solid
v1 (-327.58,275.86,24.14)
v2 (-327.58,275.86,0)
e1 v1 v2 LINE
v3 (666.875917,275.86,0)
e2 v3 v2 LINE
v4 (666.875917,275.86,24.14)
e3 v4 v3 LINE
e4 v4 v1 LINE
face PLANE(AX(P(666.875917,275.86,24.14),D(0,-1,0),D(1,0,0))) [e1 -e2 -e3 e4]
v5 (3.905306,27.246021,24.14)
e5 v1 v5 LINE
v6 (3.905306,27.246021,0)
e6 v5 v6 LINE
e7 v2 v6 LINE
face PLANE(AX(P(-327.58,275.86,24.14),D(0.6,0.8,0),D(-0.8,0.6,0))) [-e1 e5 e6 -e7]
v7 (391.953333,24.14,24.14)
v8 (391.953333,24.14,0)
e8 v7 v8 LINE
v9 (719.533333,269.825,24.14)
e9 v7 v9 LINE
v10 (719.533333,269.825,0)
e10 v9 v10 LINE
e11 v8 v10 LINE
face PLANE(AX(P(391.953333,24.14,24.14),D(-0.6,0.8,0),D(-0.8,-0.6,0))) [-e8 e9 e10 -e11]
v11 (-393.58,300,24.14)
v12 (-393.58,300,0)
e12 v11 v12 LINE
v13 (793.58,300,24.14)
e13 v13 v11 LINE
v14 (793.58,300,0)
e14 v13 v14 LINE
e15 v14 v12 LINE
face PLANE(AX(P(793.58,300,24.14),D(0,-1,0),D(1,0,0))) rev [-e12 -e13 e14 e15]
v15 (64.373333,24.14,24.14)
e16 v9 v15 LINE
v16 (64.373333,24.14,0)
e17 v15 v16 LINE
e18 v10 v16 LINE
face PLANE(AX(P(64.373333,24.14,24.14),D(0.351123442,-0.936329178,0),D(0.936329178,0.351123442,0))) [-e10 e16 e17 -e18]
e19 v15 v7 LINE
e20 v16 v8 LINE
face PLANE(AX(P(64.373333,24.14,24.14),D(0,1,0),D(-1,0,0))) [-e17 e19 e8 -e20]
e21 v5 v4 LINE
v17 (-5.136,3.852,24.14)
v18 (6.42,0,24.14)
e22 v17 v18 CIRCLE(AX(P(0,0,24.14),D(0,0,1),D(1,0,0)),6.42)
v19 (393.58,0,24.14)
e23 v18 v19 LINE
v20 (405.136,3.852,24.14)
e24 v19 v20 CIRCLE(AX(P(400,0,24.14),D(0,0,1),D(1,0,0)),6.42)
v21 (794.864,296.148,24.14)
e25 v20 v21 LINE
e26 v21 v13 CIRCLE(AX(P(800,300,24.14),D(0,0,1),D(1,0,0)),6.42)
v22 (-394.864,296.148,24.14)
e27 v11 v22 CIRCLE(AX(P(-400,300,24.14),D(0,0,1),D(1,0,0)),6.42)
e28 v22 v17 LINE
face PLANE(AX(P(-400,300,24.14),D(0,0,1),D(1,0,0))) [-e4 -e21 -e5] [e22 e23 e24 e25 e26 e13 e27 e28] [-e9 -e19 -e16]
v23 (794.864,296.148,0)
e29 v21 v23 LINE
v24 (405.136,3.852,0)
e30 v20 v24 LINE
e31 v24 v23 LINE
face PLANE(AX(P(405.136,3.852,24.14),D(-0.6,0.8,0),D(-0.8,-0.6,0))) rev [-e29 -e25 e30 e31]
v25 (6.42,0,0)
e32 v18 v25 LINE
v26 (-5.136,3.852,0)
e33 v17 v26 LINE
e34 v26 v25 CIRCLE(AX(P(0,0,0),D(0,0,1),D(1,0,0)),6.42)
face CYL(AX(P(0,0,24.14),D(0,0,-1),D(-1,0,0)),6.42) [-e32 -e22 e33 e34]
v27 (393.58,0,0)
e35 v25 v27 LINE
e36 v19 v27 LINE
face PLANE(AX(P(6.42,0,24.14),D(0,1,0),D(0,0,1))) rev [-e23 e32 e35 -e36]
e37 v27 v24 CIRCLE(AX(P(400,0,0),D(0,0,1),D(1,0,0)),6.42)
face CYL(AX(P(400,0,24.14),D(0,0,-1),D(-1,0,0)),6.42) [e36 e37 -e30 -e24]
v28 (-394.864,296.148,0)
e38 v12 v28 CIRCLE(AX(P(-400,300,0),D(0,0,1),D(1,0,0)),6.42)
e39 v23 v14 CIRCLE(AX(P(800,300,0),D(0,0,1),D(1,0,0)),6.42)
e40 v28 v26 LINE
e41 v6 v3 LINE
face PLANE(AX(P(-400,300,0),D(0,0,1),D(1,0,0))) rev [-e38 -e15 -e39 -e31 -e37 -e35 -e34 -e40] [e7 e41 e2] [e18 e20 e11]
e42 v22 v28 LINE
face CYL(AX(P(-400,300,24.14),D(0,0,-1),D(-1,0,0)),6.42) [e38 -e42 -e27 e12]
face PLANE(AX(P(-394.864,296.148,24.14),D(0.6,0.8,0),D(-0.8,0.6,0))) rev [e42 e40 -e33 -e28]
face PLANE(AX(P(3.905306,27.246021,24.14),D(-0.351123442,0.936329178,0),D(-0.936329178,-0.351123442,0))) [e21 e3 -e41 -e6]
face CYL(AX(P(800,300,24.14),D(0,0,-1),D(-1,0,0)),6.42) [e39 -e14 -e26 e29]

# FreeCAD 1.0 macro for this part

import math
import FreeCAD as App
import Part
import Sketcher


def add_polygon(sketch, points):
    """Adds a closed chain of lines whose ends are joined by coincident constraints."""
    first, n = sketch.GeometryCount, len(points)
    for a, b in zip(points, points[1:] + points[:1]):
        sketch.addGeometry(Part.LineSegment(App.Vector(*a, 0), App.Vector(*b, 0)), False)
    for i in range(n):
        sketch.addConstraint(Sketcher.Constraint("Coincident", first + i, 2, first + (i + 1) % n, 1))

doc = App.newDocument("Part")
params = doc.addObject("Spreadsheet::Sheet", "Params")
for row, (alias, value) in enumerate([
    ("sketch1_radius", "6.42 mm"),
    ("sketch1_width", "327.58 mm"),
    ("pad1_length", "24.14 mm"),
], start=1):
    params.set(f"A{row}", alias)
    params.set(f"B{row}", "=" + value)
    params.setAlias(f"B{row}", alias)

body = doc.addObject("PartDesign::Body", "Body")

# Sketch on XY plane
sketch1 = doc.addObject("Sketcher::SketchObject", "Sketch")
body.addObject(sketch1)
sketch1.AttachmentSupport = (doc.XY_Plane, [""])
sketch1.MapMode = "FlatFace"
sketch1.addGeometry(Part.LineSegment(App.Vector(6.4, 0, 0), App.Vector(393.6, 0, 0)), False)  # 0
sketch1.addGeometry(Part.ArcOfCircle(Part.Circle(App.Vector(400, 0, 0), App.Vector(0, 0, 1), 6.4), math.radians(180), math.radians(397)), False)  # 1
sketch1.addGeometry(Part.LineSegment(App.Vector(405.1, 3.9, 0), App.Vector(794.9, 296.1, 0)), False)  # 2
sketch1.addGeometry(Part.ArcOfCircle(Part.Circle(App.Vector(800, 300, 0), App.Vector(0, 0, 1), 6.4), math.radians(-143), math.radians(180)), False)  # 3
sketch1.addGeometry(Part.LineSegment(App.Vector(793.6, 300, 0), App.Vector(-393.6, 300, 0)), False)  # 4
sketch1.addGeometry(Part.ArcOfCircle(Part.Circle(App.Vector(-400, 300, 0), App.Vector(0, 0, 1), 6.4), math.radians(0), math.radians(323)), False)  # 5
sketch1.addGeometry(Part.LineSegment(App.Vector(-394.9, 296.1, 0), App.Vector(-5.1, 3.9, 0)), False)  # 6
sketch1.addGeometry(Part.ArcOfCircle(Part.Circle(App.Vector(0, 0, 0), App.Vector(0, 0, 1), 6.4), math.radians(143), math.radians(360)), False)  # 7
add_polygon(sketch1, [(392, 24.1), (64.4, 24.1), (719.5, 269.8)])  # lines 8-10
add_polygon(sketch1, [(3.9, 27.2), (-327.6, 275.9), (666.9, 275.9)])  # lines 11-13
sketch1.addConstraint([
    Sketcher.Constraint("Coincident", 0, 2, 1, 1),
    Sketcher.Constraint("Coincident", 1, 2, 2, 1),
    Sketcher.Constraint("Coincident", 2, 2, 3, 1),
    Sketcher.Constraint("Coincident", 3, 2, 4, 1),
    Sketcher.Constraint("Coincident", 4, 2, 5, 1),
    Sketcher.Constraint("Coincident", 5, 2, 6, 1),
    Sketcher.Constraint("Coincident", 6, 2, 7, 1),
    Sketcher.Constraint("Coincident", 7, 2, 0, 1),
    Sketcher.Constraint("Horizontal", 0),
    Sketcher.Constraint("Horizontal", 4),
    Sketcher.Constraint("Horizontal", 8),
    Sketcher.Constraint("Horizontal", 12),
    Sketcher.Constraint("Coincident", 7, 3, -1, 1),
    Sketcher.Constraint("Equal", 1, 3),
    Sketcher.Constraint("Equal", 3, 5),
    Sketcher.Constraint("Equal", 5, 7),
    Sketcher.Constraint("PointOnObject", 1, 3, -1),
    Sketcher.Constraint("PointOnObject", 0, 2, -1),
    Sketcher.Constraint("Parallel", 2, 10),
    Sketcher.Constraint("Parallel", 6, 11),
    Sketcher.Constraint("Parallel", 9, 13),
    Sketcher.Constraint("Horizontal", 3, 3, 5, 3),
    Sketcher.Constraint("Horizontal", 5, 3, 3, 2),
    Sketcher.Constraint("Horizontal", 2, 2, 5, 2),
    Sketcher.Constraint("Horizontal", 1, 2, 6, 2),
    Sketcher.Constraint("Equal", 2, 6),
    Sketcher.Constraint("Radius", 1, 6.42),
    Sketcher.Constraint("DistanceX", -1, 1, 1, 3, 400.0),
    Sketcher.Constraint("DistanceX", -1, 1, 3, 3, 800.0),
    Sketcher.Constraint("DistanceY", -1, 1, 3, 3, 300.0),
    Sketcher.Constraint("DistanceX", 4, 2, 11, 2, 66.0),
    Sketcher.Constraint("DistanceX", 8, 2, 8, 1, 327.58),
    Sketcher.Constraint("DistanceY", -1, 1, 8, 2, 24.14),
    Sketcher.Constraint("DistanceY", -1, 1, 11, 2, 275.86),
    Sketcher.Constraint("Distance", 10, 409.475),
    Sketcher.Constraint("DistanceX", -1, 1, 1, 2, 405.136),
    Sketcher.Constraint("DistanceX", -1, 1, 2, 2, 794.864),
    Sketcher.Constraint("Distance", 11, 414.356632),
    Sketcher.Constraint("DistanceX", -1, 1, 8, 2, 64.373333),
])
sketch1.setExpression("Constraints[32]", "Params.sketch1_radius")
sketch1.setExpression("Constraints[37]", "Params.sketch1_width")
pad1 = doc.addObject("PartDesign::Pad", "Pad")
body.addObject(pad1)
pad1.Profile = sketch1
pad1.setExpression("Length", "Params.pad1_length")

doc.recompute()
